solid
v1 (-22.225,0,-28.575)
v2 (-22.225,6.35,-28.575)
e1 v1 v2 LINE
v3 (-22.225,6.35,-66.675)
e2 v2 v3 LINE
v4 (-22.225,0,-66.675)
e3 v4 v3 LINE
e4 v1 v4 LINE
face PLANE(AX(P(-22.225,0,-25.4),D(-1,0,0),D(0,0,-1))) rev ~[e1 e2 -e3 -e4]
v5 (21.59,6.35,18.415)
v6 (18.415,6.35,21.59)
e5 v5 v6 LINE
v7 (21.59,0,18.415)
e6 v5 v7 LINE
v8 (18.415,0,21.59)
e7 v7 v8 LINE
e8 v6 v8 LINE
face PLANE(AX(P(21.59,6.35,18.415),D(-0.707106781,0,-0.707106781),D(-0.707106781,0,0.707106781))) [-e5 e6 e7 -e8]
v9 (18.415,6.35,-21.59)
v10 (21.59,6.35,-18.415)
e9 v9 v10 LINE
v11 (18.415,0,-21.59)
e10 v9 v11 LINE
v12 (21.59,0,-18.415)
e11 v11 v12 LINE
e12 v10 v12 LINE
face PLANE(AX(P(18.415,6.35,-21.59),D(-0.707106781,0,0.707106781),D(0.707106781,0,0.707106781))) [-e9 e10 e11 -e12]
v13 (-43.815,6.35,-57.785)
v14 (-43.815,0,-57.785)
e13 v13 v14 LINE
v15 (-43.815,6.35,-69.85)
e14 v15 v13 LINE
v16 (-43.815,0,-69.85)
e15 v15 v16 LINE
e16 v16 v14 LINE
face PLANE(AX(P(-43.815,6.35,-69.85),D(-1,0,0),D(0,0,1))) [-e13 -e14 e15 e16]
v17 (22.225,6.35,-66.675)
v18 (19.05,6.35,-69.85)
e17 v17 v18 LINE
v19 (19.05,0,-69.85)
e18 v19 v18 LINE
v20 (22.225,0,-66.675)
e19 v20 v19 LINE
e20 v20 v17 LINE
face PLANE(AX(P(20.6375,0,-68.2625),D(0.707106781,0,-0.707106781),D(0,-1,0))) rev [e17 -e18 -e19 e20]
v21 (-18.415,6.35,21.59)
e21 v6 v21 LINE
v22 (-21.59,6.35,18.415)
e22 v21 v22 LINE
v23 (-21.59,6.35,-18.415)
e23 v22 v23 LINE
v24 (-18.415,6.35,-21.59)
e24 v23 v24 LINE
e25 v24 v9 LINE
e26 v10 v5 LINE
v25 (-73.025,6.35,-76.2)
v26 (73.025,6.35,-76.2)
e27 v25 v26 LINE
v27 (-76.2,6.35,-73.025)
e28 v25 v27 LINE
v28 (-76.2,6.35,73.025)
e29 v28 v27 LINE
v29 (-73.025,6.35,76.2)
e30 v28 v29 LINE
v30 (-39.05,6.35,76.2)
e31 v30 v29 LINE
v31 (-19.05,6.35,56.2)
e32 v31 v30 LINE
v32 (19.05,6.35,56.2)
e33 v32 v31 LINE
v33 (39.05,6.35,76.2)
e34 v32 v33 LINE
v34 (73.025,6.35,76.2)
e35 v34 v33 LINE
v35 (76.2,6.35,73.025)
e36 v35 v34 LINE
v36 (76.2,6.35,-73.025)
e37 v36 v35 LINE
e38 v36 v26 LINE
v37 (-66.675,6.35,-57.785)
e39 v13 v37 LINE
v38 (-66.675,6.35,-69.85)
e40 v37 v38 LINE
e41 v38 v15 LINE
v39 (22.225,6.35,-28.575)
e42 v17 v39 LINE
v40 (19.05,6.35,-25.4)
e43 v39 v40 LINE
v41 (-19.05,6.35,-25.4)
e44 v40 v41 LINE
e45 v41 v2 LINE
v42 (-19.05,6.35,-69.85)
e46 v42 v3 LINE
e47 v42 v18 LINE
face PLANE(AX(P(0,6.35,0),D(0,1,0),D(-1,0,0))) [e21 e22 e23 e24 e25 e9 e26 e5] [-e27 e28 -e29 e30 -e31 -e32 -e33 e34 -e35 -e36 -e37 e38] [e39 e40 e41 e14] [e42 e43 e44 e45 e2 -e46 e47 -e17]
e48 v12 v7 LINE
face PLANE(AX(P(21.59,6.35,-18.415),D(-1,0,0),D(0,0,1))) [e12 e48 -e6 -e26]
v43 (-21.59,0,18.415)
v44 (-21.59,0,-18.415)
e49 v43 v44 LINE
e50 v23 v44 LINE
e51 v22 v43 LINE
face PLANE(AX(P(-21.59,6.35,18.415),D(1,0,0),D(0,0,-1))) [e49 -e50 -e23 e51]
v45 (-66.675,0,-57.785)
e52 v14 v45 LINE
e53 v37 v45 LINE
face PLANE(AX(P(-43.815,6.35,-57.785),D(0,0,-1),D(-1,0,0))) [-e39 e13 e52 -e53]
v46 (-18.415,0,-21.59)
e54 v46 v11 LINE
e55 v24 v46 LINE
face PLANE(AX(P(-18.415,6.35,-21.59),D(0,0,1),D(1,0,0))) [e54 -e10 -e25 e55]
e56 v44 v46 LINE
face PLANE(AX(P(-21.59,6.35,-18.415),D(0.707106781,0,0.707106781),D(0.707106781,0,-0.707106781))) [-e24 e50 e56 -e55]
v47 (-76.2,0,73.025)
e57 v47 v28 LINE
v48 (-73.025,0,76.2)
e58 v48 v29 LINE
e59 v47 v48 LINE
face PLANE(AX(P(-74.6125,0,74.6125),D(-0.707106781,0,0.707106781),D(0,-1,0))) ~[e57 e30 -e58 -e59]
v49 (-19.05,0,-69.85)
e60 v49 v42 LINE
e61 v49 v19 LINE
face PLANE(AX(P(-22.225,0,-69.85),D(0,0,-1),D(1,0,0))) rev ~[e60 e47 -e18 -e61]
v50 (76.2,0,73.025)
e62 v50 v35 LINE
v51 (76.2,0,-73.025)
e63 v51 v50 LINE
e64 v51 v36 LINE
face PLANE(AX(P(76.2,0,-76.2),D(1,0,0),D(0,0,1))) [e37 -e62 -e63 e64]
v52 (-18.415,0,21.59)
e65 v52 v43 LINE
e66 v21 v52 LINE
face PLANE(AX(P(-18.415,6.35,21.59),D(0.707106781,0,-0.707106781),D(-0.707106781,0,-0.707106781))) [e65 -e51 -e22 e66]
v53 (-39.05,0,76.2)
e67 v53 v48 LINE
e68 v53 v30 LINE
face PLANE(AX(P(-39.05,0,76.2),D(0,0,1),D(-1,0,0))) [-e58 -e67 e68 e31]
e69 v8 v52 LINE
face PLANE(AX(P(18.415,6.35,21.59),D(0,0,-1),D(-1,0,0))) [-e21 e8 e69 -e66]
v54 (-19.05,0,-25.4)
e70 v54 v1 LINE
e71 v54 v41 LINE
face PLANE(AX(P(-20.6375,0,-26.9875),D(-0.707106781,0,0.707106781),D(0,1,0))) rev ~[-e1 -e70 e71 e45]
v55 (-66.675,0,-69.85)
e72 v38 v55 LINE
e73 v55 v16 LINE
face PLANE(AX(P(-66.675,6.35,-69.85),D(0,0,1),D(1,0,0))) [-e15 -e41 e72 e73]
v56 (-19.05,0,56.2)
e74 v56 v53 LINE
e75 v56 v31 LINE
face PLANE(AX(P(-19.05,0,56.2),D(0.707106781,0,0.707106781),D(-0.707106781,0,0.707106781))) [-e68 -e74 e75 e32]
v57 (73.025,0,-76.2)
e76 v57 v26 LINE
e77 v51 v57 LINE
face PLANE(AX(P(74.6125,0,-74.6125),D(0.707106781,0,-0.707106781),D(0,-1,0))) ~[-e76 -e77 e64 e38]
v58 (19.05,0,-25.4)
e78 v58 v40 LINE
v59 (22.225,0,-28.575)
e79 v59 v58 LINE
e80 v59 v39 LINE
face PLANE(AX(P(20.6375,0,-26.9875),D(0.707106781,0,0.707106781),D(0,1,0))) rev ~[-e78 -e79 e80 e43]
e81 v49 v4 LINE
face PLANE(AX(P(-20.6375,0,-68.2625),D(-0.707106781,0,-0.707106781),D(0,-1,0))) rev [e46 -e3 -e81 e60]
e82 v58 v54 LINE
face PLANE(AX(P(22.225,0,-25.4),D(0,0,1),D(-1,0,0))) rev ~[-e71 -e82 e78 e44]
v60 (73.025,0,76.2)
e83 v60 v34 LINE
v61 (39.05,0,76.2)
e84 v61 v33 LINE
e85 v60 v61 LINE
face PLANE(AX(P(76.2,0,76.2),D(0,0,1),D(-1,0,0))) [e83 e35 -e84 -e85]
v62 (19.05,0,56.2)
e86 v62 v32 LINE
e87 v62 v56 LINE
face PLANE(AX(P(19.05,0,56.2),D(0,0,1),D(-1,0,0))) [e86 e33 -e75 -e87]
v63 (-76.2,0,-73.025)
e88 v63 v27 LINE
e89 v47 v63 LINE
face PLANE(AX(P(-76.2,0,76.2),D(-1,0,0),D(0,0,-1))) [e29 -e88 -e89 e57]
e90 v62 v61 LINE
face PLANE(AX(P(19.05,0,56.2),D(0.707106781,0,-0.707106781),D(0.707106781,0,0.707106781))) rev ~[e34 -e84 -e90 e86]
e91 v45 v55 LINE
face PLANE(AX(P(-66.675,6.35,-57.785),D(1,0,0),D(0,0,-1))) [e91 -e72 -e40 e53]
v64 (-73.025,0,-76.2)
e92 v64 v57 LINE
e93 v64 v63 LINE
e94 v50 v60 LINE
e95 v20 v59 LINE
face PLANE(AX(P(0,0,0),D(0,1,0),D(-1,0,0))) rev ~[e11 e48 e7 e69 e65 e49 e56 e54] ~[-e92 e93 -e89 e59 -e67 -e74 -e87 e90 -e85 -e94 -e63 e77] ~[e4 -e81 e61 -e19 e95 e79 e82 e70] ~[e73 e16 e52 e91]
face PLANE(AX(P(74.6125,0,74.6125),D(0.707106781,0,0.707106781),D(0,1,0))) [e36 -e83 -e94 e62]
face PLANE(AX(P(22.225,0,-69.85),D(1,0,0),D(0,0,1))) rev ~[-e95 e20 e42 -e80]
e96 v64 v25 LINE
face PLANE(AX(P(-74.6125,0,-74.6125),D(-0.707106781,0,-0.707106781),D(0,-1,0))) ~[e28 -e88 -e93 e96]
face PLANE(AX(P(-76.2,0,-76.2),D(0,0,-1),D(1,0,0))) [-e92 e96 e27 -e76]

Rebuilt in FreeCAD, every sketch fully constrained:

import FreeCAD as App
import Part
import Sketcher
Q = App.Units.Quantity


def edges_at(feature, points):
    """Names of the edges that pass closest to the given points."""
    edges = feature.Shape.Edges
    near = lambda p: min(range(len(edges)), key=lambda i: edges[i].distToShape(Part.Vertex(*p))[0])
    return sorted({f"Edge{near(p) + 1}" for p in points})


def add_polygon(sketch, points):
    """Adds a closed chain of lines whose ends are joined by coincident constraints."""
    first, n = sketch.GeometryCount, len(points)
    for a, b in zip(points, points[1:] + points[:1]):
        sketch.addGeometry(Part.LineSegment(App.Vector(*a, 0), App.Vector(*b, 0)), False)
    for i in range(n):
        sketch.addConstraint(Sketcher.Constraint("Coincident", first + i, 2, first + (i + 1) % n, 1))

doc = App.newDocument("Part")
body = doc.addObject("PartDesign::Body", "Body")

# Sketch on XZ plane
sketch1 = body.newObject("Sketcher::SketchObject", "Sketch")
sketch1.AttachmentSupport = (doc.getObject("XZ_Plane"), [""])
sketch1.MapMode = "FlatFace"
add_polygon(sketch1, [(76, -76), (-76, -76), (-76, 76), (-39, 76), (-19, 56), (19, 56), (39, 76), (76, 76)])  # lines 0-7
add_polygon(sketch1, [(22, -70), (22, -25), (-22, -25), (-22, -70)])  # lines 8-11
sketch1.addConstraint([
    Sketcher.Constraint("Horizontal", 0),
    Sketcher.Constraint("Vertical", 1),
    Sketcher.Constraint("Horizontal", 2),
    Sketcher.Constraint("Horizontal", 4),
    Sketcher.Constraint("Horizontal", 6),
    Sketcher.Constraint("Vertical", 7),
    Sketcher.Constraint("Vertical", 8),
    Sketcher.Constraint("Horizontal", 9),
    Sketcher.Constraint("Vertical", 10),
    Sketcher.Constraint("Horizontal", 11),
    Sketcher.Constraint("Symmetric", 0, 2, 6, 2, -1, 1),
    Sketcher.Constraint("Symmetric", 2, 2, 5, 2, -2),
    Sketcher.Constraint("Perpendicular", 3, 5),
    Sketcher.Constraint("Equal", 0, 1),
    Sketcher.Constraint("Equal", 11, 8),
    Sketcher.Constraint("Equal", 3, 5),
    Sketcher.Constraint("DistanceX", 0, 2, 0, 1, Q("6 in")),
    Sketcher.Constraint("DistanceX", 4, 1, 4, 2, Q("1.5 in")),
    Sketcher.Constraint("DistanceX", 9, 2, 9, 1, Q("1.75 in")),
    Sketcher.Constraint("DistanceY", 0, 2, 10, 2, Q("0.25 in")),
    Sketcher.Constraint("DistanceX", -1, 1, 8, 2, Q("0.875 in")),
    Sketcher.Constraint("DistanceY", -1, 1, 3, 2, Q("2.2126 in")),
])
pad1 = body.newObject("PartDesign::Pad", "Pad")
pad1.Profile = sketch1
pad1.Length = Q("0.25 in")
pad1.Reversed = True
doc.recompute()

chamfer = body.newObject("PartDesign::Chamfer", "Chamfer")
chamfer.Base = (pad1, edges_at(pad1, [(76.2, 3.175, 76.2)]))
chamfer.Size = Q("0.125 in")
doc.recompute()

chamfer2 = body.newObject("PartDesign::Chamfer", "Chamfer001")
chamfer2.Base = (chamfer, edges_at(chamfer, [(76.2, 3.175, -76.2), (-76.2, 3.175, -76.2), (-76.2, 3.175, 76.2)]))
chamfer2.Size = Q("0.125 in")

# Sketch on XZ plane
sketch2 = body.newObject("Sketcher::SketchObject", "Sketch001")
sketch2.AttachmentSupport = (doc.getObject("XZ_Plane"), [""])
sketch2.MapMode = "FlatFace"
sketch2.AttachmentOffset = App.Placement(App.Vector(0, 0, -0.25 * 25.4), App.Rotation())
add_polygon(sketch2, [(18.4, -21.6), (-18.4, -21.6), (-21.6, -18.4), (-21.6, 18.4), (-18.4, 21.6), (18.4, 21.6), (21.6, 18.4), (21.6, -18.4)])  # lines 0-7
sketch2.addConstraint([
    Sketcher.Constraint("Horizontal", 0),
    Sketcher.Constraint("Vertical", 2),
    Sketcher.Constraint("Horizontal", 4),
    Sketcher.Constraint("Vertical", 6),
    Sketcher.Constraint("Symmetric", 0, 2, 4, 2, -1, 1),
    Sketcher.Constraint("Symmetric", 1, 2, 5, 2, -1, 1),
    Sketcher.Constraint("Perpendicular", 1, 3),
    Sketcher.Constraint("Perpendicular", 5, 7),
    Sketcher.Constraint("Horizontal", 2, 2, 5, 2),
    Sketcher.Constraint("Horizontal", 1, 2, 6, 2),
    Sketcher.Constraint("Vertical", 0, 2, 3, 2),
    Sketcher.Constraint("Equal", 4, 2),
    Sketcher.Constraint("DistanceY", 0, 2, 3, 2, Q("1.7 in")),
    Sketcher.Constraint("DistanceX", 1, 2, 0, 2, Q("0.125 in")),
])
pocket1 = body.newObject("PartDesign::Pocket", "Pocket")
pocket1.Profile = sketch2
pocket1.Type = "ThroughAll"
pocket1.Reversed = True
doc.recompute()

chamfer3 = body.newObject("PartDesign::Chamfer", "Chamfer002")
chamfer3.Base = (pocket1, edges_at(pocket1, [
    (-22.225, 3.175, -69.85),
    (-22.225, 3.175, -25.4),
    (22.225, 3.175, -69.85),
    (22.225, 3.175, -25.4),
]))
chamfer3.Size = Q("0.125 in")

# Sketch on XZ plane
sketch3 = body.newObject("Sketcher::SketchObject", "Sketch002")
sketch3.AttachmentSupport = (doc.getObject("XZ_Plane"), [""])
sketch3.MapMode = "FlatFace"
sketch3.AttachmentOffset = App.Placement(App.Vector(0, 0, -0.25 * 25.4), App.Rotation())
add_polygon(sketch3, [(-44, -70), (-67, -70), (-67, -58), (-44, -58)])  # lines 0-3
sketch3.addConstraint([
    Sketcher.Constraint("Horizontal", 0),
    Sketcher.Constraint("Vertical", 1),
    Sketcher.Constraint("Horizontal", 2),
    Sketcher.Constraint("Vertical", 3),
    Sketcher.Constraint("DistanceX", 0, 2, 0, 1, Q("0.9 in")),
    Sketcher.Constraint("DistanceY", 1, 1, 1, 2, Q("0.475 in")),
    Sketcher.Constraint("DistanceY", 0, 2, -1, 1, Q("2.75 in")),
    Sketcher.Constraint("DistanceX", 0, 2, -1, 1, Q("2.625 in")),
])
pocket2 = body.newObject("PartDesign::Pocket", "Pocket001")
pocket2.Profile = sketch3
pocket2.Type = "ThroughAll"
pocket2.Reversed = True

doc.recompute()
